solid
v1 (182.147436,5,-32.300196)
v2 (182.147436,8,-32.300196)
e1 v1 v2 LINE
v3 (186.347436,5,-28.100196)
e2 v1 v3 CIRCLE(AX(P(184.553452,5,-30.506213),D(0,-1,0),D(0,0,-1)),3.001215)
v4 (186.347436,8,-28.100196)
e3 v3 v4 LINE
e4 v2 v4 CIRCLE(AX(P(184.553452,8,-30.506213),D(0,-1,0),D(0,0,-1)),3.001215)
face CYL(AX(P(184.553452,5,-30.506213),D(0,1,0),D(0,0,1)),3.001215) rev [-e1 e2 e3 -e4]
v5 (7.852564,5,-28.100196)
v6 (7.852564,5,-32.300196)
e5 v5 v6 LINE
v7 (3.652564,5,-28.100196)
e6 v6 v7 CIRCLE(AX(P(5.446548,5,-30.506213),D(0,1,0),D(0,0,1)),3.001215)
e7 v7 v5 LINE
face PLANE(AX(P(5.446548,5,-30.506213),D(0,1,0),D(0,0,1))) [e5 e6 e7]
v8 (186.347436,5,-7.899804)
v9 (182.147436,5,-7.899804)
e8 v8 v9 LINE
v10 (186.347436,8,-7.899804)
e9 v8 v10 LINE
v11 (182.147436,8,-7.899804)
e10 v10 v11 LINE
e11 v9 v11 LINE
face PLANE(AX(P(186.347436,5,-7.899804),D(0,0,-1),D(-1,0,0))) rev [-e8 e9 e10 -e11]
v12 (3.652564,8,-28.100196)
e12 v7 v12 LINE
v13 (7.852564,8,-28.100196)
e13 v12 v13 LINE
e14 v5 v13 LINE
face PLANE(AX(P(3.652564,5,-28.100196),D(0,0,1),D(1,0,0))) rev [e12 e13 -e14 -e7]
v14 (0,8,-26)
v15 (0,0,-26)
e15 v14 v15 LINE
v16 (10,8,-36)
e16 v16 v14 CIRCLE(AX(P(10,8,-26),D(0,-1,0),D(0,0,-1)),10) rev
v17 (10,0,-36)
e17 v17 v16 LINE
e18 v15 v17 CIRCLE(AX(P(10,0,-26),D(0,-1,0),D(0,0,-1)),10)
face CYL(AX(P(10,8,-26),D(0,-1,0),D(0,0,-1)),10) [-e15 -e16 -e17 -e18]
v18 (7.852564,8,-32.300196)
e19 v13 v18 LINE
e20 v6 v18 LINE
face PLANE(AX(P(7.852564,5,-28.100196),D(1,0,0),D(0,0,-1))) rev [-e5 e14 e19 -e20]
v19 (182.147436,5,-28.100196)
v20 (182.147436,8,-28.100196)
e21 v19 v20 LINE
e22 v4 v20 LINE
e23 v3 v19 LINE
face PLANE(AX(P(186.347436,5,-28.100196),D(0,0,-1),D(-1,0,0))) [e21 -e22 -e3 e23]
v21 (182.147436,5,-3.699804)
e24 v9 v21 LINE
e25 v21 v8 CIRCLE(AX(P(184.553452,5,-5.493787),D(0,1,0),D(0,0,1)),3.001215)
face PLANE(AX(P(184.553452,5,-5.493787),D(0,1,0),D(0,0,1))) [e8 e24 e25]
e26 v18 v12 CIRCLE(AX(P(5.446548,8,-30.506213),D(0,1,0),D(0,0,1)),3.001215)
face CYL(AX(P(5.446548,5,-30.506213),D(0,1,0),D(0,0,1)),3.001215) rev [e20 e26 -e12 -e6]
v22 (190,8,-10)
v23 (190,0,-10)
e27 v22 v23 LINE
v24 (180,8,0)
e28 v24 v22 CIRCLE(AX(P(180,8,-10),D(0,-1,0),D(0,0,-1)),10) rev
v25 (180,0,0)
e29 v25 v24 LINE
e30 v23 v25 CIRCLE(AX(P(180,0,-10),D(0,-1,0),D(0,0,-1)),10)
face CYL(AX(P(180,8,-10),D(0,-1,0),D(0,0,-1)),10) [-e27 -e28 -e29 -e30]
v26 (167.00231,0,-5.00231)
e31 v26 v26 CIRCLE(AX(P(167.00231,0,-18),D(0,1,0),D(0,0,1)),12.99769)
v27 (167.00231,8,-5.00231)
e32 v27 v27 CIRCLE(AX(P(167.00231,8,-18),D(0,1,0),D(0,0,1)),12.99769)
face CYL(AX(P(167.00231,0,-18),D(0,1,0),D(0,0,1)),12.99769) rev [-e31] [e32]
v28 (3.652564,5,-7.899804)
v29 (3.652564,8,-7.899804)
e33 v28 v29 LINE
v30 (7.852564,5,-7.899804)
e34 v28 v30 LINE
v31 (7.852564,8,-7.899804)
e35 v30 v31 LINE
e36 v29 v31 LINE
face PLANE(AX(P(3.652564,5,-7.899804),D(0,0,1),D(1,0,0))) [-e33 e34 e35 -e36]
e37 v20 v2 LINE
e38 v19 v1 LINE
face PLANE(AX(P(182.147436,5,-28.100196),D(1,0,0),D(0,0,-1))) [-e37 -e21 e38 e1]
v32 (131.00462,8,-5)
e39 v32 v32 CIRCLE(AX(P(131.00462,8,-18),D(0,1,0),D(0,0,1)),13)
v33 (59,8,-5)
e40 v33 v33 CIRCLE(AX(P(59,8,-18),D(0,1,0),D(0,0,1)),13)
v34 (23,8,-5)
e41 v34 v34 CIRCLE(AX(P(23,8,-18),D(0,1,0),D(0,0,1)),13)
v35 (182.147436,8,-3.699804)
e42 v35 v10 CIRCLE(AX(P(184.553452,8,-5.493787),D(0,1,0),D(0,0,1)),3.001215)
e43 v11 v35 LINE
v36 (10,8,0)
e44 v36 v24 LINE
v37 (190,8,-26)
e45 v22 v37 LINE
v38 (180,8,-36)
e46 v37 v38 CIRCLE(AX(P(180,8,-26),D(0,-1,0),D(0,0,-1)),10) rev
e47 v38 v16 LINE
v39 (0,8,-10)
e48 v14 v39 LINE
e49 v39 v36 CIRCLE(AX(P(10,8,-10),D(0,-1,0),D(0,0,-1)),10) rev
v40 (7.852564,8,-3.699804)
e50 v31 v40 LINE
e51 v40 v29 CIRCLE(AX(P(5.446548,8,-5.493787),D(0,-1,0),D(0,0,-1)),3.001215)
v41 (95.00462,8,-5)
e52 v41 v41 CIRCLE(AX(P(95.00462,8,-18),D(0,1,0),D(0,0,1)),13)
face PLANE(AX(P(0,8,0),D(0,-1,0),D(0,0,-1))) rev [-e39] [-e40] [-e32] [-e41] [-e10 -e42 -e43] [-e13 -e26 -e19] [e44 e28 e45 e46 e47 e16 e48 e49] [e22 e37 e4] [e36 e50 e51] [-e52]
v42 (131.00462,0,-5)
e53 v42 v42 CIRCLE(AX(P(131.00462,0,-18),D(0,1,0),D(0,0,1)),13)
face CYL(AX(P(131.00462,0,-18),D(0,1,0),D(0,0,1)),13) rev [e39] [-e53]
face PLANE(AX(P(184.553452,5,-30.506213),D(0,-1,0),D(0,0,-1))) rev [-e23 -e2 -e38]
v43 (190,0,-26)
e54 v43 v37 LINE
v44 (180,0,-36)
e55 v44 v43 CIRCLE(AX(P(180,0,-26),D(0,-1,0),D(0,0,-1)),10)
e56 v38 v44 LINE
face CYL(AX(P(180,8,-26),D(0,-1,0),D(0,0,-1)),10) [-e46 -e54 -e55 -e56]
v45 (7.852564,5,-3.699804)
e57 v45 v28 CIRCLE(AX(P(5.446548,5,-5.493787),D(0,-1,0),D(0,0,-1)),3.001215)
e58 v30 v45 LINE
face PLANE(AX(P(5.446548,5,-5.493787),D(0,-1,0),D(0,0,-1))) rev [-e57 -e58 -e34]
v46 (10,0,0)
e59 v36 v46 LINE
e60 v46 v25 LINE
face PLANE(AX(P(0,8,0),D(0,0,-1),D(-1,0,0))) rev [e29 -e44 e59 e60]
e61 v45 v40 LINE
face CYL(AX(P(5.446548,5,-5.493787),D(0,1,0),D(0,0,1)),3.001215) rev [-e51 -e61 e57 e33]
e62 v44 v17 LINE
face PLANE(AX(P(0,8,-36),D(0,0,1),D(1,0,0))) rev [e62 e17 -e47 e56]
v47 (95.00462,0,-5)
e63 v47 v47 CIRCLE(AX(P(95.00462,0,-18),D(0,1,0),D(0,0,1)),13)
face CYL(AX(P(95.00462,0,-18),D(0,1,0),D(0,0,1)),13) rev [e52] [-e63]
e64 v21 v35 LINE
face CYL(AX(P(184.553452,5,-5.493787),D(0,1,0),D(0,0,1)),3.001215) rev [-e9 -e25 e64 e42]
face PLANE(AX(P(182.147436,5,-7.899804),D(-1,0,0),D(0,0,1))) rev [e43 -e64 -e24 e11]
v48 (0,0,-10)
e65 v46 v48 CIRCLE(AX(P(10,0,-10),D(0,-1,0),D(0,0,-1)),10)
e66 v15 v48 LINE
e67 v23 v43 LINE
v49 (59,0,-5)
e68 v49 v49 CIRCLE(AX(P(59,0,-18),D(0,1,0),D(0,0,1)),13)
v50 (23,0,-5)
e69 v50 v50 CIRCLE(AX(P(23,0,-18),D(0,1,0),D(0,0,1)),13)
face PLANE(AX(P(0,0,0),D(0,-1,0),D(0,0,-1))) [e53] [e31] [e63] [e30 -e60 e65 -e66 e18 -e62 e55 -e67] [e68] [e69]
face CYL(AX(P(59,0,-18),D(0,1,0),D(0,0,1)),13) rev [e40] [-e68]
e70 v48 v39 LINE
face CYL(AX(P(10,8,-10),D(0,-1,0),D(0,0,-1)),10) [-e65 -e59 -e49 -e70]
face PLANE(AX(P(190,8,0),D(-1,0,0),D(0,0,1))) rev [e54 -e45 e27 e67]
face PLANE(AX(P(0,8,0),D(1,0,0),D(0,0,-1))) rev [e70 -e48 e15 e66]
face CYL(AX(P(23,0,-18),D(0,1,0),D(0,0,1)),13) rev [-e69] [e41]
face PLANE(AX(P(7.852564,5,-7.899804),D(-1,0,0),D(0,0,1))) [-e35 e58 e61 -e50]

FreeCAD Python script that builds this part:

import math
import FreeCAD as App
import Part
import Sketcher
from FreeCAD import Vector


def edges_at(feature, points):
    """Names of the edges that pass closest to the given points."""
    edges = feature.Shape.Edges
    near = lambda p: min(range(len(edges)), key=lambda i: edges[i].distToShape(Part.Vertex(*p))[0])
    return sorted({f"Edge{near(p) + 1}" for p in points})

doc = App.newDocument("Part")
body = doc.addObject("PartDesign::Body", "Body")

# Sketch on XZ plane
sketch1 = body.newObject("Sketcher::SketchObject", "Sketch")
sketch1.AttachmentSupport = (doc.getObject("XZ_Plane"), [""])
sketch1.MapMode = "FlatFace"
sketch1.addGeometry(Part.LineSegment(Vector(0, -36, 0), Vector(0, 0, 0)), False)
sketch1.addGeometry(Part.LineSegment(Vector(0, 0, 0), Vector(190, 0, 0)), False)
sketch1.addGeometry(Part.LineSegment(Vector(190, 0, 0), Vector(190, -36, 0)), False)
sketch1.addGeometry(Part.LineSegment(Vector(190, -36, 0), Vector(0, -36, 0)), False)
sketch1.addConstraint(Sketcher.Constraint("Coincident", 0, 2, 1, 1))
sketch1.addConstraint(Sketcher.Constraint("Coincident", 1, 2, 2, 1))
sketch1.addConstraint(Sketcher.Constraint("Coincident", 2, 2, 3, 1))
sketch1.addConstraint(Sketcher.Constraint("Coincident", 3, 2, 0, 1))
sketch1.addConstraint(Sketcher.Constraint("Vertical", 0))
sketch1.addConstraint(Sketcher.Constraint("Horizontal", 1))
sketch1.addConstraint(Sketcher.Constraint("Vertical", 2))
sketch1.addConstraint(Sketcher.Constraint("Horizontal", 3))
sketch1.addConstraint(Sketcher.Constraint("Coincident", 0, 2, -1, 1))
sketch1.addConstraint(Sketcher.Constraint("DistanceX", 1, 1, 1, 2, 190.0))
sketch1.addConstraint(Sketcher.Constraint("DistanceY", 0, 1, 0, 2, 36.0))
pad1 = body.newObject("PartDesign::Pad", "Pad")
pad1.Profile = sketch1
pad1.Length = 8
pad1.Reversed = True

# Sketch on XZ plane
sketch2 = body.newObject("Sketcher::SketchObject", "Sketch001")
sketch2.AttachmentSupport = (doc.getObject("XZ_Plane"), [""])
sketch2.MapMode = "FlatFace"
sketch2.AttachmentOffset = App.Placement(Vector(0, 0, -8), App.Rotation())
sketch2.addGeometry(Part.Circle(Vector(23, -18, 0), Vector(0, 0, 1), 13), False)
sketch2.addGeometry(Part.Circle(Vector(59, -18, 0), Vector(0, 0, 1), 13), False)
sketch2.addGeometry(Part.Circle(Vector(95.00462, -18, 0), Vector(0, 0, 1), 13), False)
sketch2.addGeometry(Part.Circle(Vector(131.00462, -18, 0), Vector(0, 0, 1), 13), False)
sketch2.addGeometry(Part.Circle(Vector(167.00231, -18, 0), Vector(0, 0, 1), 12.99769), False)
sketch2.addConstraint(Sketcher.Constraint("Equal", 0, 1))
sketch2.addConstraint(Sketcher.Constraint("Equal", 1, 2))
sketch2.addConstraint(Sketcher.Constraint("Equal", 2, 3))
sketch2.addConstraint(Sketcher.Constraint("Horizontal", 0, 3, 1, 3))
sketch2.addConstraint(Sketcher.Constraint("Horizontal", 1, 3, 2, 3))
sketch2.addConstraint(Sketcher.Constraint("Horizontal", 2, 3, 3, 3))
sketch2.addConstraint(Sketcher.Constraint("Horizontal", 3, 3, 4, 3))
sketch2.addConstraint(Sketcher.Constraint("Diameter", 0, 26.0))
sketch2.addConstraint(Sketcher.Constraint("DistanceX", -1, 1, 0, 3, 23.0))
sketch2.addConstraint(Sketcher.Constraint("DistanceY", 0, 3, -1, 1, 18.0))
sketch2.addConstraint(Sketcher.Constraint("DistanceX", -1, 1, 1, 3, 59.0))
sketch2.addConstraint(Sketcher.Constraint("DistanceX", 2, 3, 3, 3, 36.0))
sketch2.addConstraint(Sketcher.Constraint("Diameter", 4, 25.99538))
sketch2.addConstraint(Sketcher.Constraint("DistanceX", -1, 1, 2, 3, 95.00462))
sketch2.addConstraint(Sketcher.Constraint("DistanceX", -1, 1, 4, 3, 167.00231))
pocket1 = body.newObject("PartDesign::Pocket", "Pocket")
pocket1.Profile = sketch2
pocket1.Length = 8
pocket1.Reversed = True
doc.recompute()

fillet = body.newObject("PartDesign::Fillet", "Fillet")
fillet.Base = (pocket1, edges_at(pocket1, [
    (0, 4, -36),
    (190, 4, -36),
    (190, 4, 0),
    (0, 4, 0),
]))
fillet.Radius = 10

# Sketch on XZ plane
sketch3 = body.newObject("Sketcher::SketchObject", "Sketch002")
sketch3.AttachmentSupport = (doc.getObject("XZ_Plane"), [""])
sketch3.MapMode = "FlatFace"
sketch3.AttachmentOffset = App.Placement(Vector(0, 0, -8), App.Rotation())
sketch3.addGeometry(Part.LineSegment(Vector(3.652564, -28.100196, 0), Vector(7.852564, -28.100196, 0)), False)
sketch3.addGeometry(Part.LineSegment(Vector(7.852564, -28.100196, 0), Vector(7.852564, -32.300196, 0)), False)
sketch3.addGeometry(Part.ArcOfCircle(Part.Circle(Vector(5.446548, -30.506213, 0), Vector(0, 0, 1), 3.001215), math.radians(126.709095), math.radians(323.290905)), False)
sketch3.addGeometry(Part.LineSegment(Vector(7.852564, -7.899804, 0), Vector(3.652564, -7.899804, 0)), False)
sketch3.addGeometry(Part.ArcOfCircle(Part.Circle(Vector(5.446548, -5.493787, 0), Vector(0, 0, 1), 3.001215), math.radians(36.709095), math.radians(233.290905)), False)
sketch3.addGeometry(Part.LineSegment(Vector(7.852564, -3.699804, 0), Vector(7.852564, -7.899804, 0)), False)
sketch3.addGeometry(Part.LineSegment(Vector(182.147436, -28.100196, 0), Vector(186.347436, -28.100196, 0)), False)
sketch3.addGeometry(Part.ArcOfCircle(Part.Circle(Vector(184.553452, -30.506213, 0), Vector(0, 0, 1), 3.001215), math.radians(-143.290905), math.radians(53.290905)), False)
sketch3.addGeometry(Part.LineSegment(Vector(182.147436, -32.300196, 0), Vector(182.147436, -28.100196, 0)), False)
sketch3.addGeometry(Part.LineSegment(Vector(182.147436, -7.899804, 0), Vector(182.147436, -3.699804, 0)), False)
sketch3.addGeometry(Part.ArcOfCircle(Part.Circle(Vector(184.553452, -5.493787, 0), Vector(0, 0, 1), 3.001215), math.radians(-53.290905), math.radians(143.290905)), False)
sketch3.addGeometry(Part.LineSegment(Vector(186.347436, -7.899804, 0), Vector(182.147436, -7.899804, 0)), False)
sketch3.addConstraint(Sketcher.Constraint("Coincident", 0, 2, 1, 1))
sketch3.addConstraint(Sketcher.Constraint("Coincident", 1, 2, 2, 2))
sketch3.addConstraint(Sketcher.Constraint("Coincident", 2, 1, 0, 1))
sketch3.addConstraint(Sketcher.Constraint("Coincident", 3, 2, 4, 2))
sketch3.addConstraint(Sketcher.Constraint("Coincident", 4, 1, 5, 1))
sketch3.addConstraint(Sketcher.Constraint("Coincident", 5, 2, 3, 1))
sketch3.addConstraint(Sketcher.Constraint("Coincident", 6, 2, 7, 2))
sketch3.addConstraint(Sketcher.Constraint("Coincident", 7, 1, 8, 1))
sketch3.addConstraint(Sketcher.Constraint("Coincident", 8, 2, 6, 1))
sketch3.addConstraint(Sketcher.Constraint("Coincident", 9, 2, 10, 2))
sketch3.addConstraint(Sketcher.Constraint("Coincident", 10, 1, 11, 1))
sketch3.addConstraint(Sketcher.Constraint("Coincident", 11, 2, 9, 1))
sketch3.addConstraint(Sketcher.Constraint("Horizontal", 0))
sketch3.addConstraint(Sketcher.Constraint("Vertical", 1))
sketch3.addConstraint(Sketcher.Constraint("Horizontal", 3))
sketch3.addConstraint(Sketcher.Constraint("Vertical", 5))
sketch3.addConstraint(Sketcher.Constraint("Horizontal", 6))
sketch3.addConstraint(Sketcher.Constraint("Vertical", 8))
sketch3.addConstraint(Sketcher.Constraint("Vertical", 9))
sketch3.addConstraint(Sketcher.Constraint("Horizontal", 11))
sketch3.addConstraint(Sketcher.Constraint("Equal", 2, 4))
sketch3.addConstraint(Sketcher.Constraint("Equal", 4, 7))
sketch3.addConstraint(Sketcher.Constraint("Equal", 7, 10))
sketch3.addConstraint(Sketcher.Constraint("Horizontal", 2, 3, 7, 3))
sketch3.addConstraint(Sketcher.Constraint("Horizontal", 4, 3, 10, 3))
sketch3.addConstraint(Sketcher.Constraint("Horizontal", 2, 1, 6, 2))
sketch3.addConstraint(Sketcher.Constraint("Horizontal", 1, 2, 7, 1))
sketch3.addConstraint(Sketcher.Constraint("Horizontal", 4, 1, 9, 2))
sketch3.addConstraint(Sketcher.Constraint("Horizontal", 5, 2, 10, 1))
sketch3.addConstraint(Sketcher.Constraint("Vertical", 2, 3, 4, 3))
sketch3.addConstraint(Sketcher.Constraint("Vertical", 7, 3, 10, 3))
sketch3.addConstraint(Sketcher.Constraint("Vertical", 2, 1, 3, 2))
sketch3.addConstraint(Sketcher.Constraint("Vertical", 1, 2, 4, 1))
sketch3.addConstraint(Sketcher.Constraint("Equal", 11, 1))
sketch3.addConstraint(Sketcher.Constraint("DistanceX", 0, 1, 0, 2, 4.2))
sketch3.addConstraint(Sketcher.Constraint("Radius", 2, 3.001215))
sketch3.addConstraint(Sketcher.Constraint("DistanceX", -1, 1, 2, 3, 5.446548))
sketch3.addConstraint(Sketcher.Constraint("DistanceX", -1, 1, 7, 3, 184.553452))
sketch3.addConstraint(Sketcher.Constraint("DistanceY", 0, 2, 4, 3, 22.606409))
sketch3.addConstraint(Sketcher.Constraint("DistanceY", 2, 3, -1, 1, 30.506213))
pocket2 = body.newObject("PartDesign::Pocket", "Pocket001")
pocket2.Profile = sketch3
pocket2.Length = 3
pocket2.Reversed = True

doc.recompute()
